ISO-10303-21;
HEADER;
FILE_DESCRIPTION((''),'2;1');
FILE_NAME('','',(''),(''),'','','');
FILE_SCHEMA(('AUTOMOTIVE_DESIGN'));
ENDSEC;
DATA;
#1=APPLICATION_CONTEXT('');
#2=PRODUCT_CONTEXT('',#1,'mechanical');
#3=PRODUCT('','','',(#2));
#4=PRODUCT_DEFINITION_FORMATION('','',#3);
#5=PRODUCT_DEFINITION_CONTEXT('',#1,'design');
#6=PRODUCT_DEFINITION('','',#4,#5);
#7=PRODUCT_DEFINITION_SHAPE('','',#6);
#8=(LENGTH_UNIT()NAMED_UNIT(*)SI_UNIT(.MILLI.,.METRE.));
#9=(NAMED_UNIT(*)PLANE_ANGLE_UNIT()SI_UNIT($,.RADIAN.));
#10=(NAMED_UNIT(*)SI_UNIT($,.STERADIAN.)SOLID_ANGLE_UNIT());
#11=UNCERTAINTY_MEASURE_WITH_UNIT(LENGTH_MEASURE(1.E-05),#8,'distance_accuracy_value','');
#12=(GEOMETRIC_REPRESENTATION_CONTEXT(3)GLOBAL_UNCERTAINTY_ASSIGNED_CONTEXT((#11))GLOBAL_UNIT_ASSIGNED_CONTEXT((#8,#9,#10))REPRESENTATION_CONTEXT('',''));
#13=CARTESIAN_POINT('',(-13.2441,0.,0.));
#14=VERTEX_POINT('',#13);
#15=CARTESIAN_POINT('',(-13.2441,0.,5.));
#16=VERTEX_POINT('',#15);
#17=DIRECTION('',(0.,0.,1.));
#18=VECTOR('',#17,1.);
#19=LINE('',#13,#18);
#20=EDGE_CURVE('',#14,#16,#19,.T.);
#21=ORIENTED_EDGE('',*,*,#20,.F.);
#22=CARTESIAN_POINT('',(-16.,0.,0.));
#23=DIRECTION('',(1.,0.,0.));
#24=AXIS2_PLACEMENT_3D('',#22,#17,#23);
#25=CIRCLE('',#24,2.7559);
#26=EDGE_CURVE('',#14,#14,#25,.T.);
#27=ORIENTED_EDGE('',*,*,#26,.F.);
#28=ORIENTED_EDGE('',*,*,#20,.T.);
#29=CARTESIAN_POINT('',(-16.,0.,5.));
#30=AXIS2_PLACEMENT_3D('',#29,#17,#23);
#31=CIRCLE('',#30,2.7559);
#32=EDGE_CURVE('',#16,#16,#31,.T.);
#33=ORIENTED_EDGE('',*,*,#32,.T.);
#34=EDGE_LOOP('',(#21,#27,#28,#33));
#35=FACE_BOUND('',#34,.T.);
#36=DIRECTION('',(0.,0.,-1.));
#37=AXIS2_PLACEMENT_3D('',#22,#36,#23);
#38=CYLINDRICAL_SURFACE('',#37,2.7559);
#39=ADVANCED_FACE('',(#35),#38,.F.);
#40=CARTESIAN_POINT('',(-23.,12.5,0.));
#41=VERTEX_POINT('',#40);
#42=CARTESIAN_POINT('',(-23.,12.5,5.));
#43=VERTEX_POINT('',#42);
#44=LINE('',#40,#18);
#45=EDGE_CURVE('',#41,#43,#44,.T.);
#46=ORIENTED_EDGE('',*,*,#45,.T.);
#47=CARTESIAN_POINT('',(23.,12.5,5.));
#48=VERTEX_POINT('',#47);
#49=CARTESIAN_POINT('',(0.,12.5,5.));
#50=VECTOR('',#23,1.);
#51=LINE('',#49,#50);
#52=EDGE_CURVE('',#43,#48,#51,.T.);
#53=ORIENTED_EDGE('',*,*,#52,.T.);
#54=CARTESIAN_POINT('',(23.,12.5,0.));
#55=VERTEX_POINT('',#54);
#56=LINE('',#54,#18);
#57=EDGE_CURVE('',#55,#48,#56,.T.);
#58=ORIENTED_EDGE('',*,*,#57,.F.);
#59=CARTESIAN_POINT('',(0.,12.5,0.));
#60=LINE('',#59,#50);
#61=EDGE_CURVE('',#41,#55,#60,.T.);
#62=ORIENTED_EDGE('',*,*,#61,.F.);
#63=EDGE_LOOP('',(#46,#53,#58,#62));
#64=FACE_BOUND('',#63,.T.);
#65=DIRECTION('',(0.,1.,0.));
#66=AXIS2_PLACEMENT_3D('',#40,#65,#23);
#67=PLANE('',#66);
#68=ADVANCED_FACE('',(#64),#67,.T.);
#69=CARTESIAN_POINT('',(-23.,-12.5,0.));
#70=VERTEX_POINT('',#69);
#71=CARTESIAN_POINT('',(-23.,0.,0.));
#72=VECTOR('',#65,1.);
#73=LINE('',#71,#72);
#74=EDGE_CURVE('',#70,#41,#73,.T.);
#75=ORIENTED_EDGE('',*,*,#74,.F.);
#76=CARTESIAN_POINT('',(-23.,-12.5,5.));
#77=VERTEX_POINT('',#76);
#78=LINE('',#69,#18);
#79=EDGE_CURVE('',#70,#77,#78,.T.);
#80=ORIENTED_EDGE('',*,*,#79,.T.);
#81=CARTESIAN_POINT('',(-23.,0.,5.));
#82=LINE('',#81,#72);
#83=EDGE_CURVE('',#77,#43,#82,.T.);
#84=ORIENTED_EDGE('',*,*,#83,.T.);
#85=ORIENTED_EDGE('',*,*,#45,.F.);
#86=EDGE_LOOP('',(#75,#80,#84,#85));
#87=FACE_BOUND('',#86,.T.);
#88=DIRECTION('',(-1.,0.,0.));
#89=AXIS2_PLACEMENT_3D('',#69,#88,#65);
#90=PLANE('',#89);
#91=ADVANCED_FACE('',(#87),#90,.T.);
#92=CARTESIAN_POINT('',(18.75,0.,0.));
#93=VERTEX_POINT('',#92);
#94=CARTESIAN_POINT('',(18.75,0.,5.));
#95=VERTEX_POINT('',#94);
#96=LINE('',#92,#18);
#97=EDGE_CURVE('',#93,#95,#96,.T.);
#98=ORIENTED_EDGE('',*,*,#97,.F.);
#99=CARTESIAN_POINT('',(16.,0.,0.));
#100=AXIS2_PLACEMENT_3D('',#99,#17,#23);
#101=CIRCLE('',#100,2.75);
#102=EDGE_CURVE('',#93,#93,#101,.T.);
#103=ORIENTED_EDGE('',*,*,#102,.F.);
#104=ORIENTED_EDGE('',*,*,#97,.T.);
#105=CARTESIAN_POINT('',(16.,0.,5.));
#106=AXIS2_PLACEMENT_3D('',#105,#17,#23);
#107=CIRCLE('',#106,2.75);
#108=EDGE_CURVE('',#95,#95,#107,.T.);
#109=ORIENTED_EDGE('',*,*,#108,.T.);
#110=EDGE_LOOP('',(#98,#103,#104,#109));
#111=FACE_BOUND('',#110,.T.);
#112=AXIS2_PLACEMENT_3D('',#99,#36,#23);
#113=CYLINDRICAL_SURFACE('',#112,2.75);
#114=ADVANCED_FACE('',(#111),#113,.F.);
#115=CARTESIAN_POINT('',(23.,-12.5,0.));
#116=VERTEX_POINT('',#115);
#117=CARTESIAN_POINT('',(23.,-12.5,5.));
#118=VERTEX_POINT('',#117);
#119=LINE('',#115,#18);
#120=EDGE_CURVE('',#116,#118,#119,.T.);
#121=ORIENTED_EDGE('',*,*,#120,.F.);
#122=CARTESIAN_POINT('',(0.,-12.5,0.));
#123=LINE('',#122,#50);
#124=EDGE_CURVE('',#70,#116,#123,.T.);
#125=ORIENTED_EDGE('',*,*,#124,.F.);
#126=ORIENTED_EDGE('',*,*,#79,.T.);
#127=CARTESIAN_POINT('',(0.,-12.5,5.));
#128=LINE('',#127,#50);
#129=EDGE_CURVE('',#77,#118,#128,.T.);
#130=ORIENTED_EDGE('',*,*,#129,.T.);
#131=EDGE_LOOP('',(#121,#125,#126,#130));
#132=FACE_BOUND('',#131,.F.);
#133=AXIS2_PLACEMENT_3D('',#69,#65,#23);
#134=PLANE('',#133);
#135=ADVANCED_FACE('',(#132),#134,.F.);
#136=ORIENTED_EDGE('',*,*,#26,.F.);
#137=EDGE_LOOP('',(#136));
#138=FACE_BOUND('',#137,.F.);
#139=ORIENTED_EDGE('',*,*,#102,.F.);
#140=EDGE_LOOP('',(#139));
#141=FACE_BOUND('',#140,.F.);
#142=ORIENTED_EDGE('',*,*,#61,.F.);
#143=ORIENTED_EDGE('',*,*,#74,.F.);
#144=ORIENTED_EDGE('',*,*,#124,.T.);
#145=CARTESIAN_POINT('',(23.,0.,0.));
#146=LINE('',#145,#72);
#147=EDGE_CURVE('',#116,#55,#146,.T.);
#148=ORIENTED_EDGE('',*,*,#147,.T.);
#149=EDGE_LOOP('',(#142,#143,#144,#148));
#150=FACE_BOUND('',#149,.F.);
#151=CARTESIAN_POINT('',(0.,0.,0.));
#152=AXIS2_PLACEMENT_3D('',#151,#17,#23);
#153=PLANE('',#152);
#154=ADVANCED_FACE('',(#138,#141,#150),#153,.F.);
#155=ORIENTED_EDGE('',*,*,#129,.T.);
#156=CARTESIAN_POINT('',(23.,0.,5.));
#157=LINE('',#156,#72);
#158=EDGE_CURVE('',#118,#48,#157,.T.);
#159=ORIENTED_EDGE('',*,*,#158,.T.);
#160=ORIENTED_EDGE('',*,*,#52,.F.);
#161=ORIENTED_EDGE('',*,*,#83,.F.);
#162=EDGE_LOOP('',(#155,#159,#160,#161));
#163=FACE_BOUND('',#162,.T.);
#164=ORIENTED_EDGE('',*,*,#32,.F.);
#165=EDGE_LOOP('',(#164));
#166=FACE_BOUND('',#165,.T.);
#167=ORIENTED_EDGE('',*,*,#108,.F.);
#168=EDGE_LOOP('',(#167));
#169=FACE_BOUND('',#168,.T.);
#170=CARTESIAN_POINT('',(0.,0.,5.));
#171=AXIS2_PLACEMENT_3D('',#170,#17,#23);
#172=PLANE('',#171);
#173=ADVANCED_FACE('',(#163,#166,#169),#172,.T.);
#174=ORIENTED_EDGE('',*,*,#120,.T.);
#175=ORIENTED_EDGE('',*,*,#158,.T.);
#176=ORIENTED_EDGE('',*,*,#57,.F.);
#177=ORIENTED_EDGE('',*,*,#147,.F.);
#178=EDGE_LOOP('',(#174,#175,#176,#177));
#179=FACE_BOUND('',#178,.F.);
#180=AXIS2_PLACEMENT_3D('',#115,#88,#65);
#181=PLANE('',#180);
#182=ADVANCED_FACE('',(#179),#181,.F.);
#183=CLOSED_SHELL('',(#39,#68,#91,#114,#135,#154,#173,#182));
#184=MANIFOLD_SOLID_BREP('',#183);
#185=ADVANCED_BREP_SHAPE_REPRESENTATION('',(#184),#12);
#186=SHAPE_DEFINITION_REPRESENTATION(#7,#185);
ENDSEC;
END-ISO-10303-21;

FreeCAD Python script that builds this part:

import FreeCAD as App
import Part
import Sketcher
from FreeCAD import Vector


def add_polygon(sketch, points):
    """Adds a closed chain of lines whose ends are joined by coincident constraints."""
    first, n = sketch.GeometryCount, len(points)
    for a, b in zip(points, points[1:] + points[:1]):
        sketch.addGeometry(Part.LineSegment(App.Vector(*a, 0), App.Vector(*b, 0)), False)
    for i in range(n):
        sketch.addConstraint(Sketcher.Constraint("Coincident", first + i, 2, first + (i + 1) % n, 1))

doc = App.newDocument("Part")
body = doc.addObject("PartDesign::Body", "Body")

# Sketch on XY plane
sketch1 = body.newObject("Sketcher::SketchObject", "Sketch")
sketch1.AttachmentSupport = (doc.getObject("XY_Plane"), [""])
sketch1.MapMode = "FlatFace"
add_polygon(sketch1, [(-23, 12.5), (-23, -12.5), (23, -12.5), (23, 12.5)])  # lines 0-3
sketch1.addGeometry(Part.Circle(Vector(-16, 0, 0), Vector(0, 0, 1), 2.7559), False)  # 4
sketch1.addGeometry(Part.Circle(Vector(16, 0, 0), Vector(0, 0, 1), 2.75), False)  # 5
sketch1.addConstraint([
    Sketcher.Constraint("Vertical", 0),
    Sketcher.Constraint("Horizontal", 1),
    Sketcher.Constraint("Vertical", 2),
    Sketcher.Constraint("Horizontal", 3),
    Sketcher.Constraint("Symmetric", 4, 3, 5, 3, -1, 1),
    Sketcher.Constraint("Symmetric", 0, 2, 2, 2, -1, 1),
    Sketcher.Constraint("PointOnObject", 4, 3, -1),
    Sketcher.Constraint("Diameter", 5, 5.5),
    Sketcher.Constraint("DistanceX", 1, 1, 1, 2, 46.0),
    Sketcher.Constraint("DistanceY", 0, 2, 0, 1, 25.0),
    Sketcher.Constraint("DistanceX", 4, 3, -1, 1, 16.0),
    Sketcher.Constraint("Diameter", 4, 5.5118),
])
pad1 = body.newObject("PartDesign::Pad", "Pad")
pad1.Profile = sketch1
pad1.Length = 5

doc.recompute()
